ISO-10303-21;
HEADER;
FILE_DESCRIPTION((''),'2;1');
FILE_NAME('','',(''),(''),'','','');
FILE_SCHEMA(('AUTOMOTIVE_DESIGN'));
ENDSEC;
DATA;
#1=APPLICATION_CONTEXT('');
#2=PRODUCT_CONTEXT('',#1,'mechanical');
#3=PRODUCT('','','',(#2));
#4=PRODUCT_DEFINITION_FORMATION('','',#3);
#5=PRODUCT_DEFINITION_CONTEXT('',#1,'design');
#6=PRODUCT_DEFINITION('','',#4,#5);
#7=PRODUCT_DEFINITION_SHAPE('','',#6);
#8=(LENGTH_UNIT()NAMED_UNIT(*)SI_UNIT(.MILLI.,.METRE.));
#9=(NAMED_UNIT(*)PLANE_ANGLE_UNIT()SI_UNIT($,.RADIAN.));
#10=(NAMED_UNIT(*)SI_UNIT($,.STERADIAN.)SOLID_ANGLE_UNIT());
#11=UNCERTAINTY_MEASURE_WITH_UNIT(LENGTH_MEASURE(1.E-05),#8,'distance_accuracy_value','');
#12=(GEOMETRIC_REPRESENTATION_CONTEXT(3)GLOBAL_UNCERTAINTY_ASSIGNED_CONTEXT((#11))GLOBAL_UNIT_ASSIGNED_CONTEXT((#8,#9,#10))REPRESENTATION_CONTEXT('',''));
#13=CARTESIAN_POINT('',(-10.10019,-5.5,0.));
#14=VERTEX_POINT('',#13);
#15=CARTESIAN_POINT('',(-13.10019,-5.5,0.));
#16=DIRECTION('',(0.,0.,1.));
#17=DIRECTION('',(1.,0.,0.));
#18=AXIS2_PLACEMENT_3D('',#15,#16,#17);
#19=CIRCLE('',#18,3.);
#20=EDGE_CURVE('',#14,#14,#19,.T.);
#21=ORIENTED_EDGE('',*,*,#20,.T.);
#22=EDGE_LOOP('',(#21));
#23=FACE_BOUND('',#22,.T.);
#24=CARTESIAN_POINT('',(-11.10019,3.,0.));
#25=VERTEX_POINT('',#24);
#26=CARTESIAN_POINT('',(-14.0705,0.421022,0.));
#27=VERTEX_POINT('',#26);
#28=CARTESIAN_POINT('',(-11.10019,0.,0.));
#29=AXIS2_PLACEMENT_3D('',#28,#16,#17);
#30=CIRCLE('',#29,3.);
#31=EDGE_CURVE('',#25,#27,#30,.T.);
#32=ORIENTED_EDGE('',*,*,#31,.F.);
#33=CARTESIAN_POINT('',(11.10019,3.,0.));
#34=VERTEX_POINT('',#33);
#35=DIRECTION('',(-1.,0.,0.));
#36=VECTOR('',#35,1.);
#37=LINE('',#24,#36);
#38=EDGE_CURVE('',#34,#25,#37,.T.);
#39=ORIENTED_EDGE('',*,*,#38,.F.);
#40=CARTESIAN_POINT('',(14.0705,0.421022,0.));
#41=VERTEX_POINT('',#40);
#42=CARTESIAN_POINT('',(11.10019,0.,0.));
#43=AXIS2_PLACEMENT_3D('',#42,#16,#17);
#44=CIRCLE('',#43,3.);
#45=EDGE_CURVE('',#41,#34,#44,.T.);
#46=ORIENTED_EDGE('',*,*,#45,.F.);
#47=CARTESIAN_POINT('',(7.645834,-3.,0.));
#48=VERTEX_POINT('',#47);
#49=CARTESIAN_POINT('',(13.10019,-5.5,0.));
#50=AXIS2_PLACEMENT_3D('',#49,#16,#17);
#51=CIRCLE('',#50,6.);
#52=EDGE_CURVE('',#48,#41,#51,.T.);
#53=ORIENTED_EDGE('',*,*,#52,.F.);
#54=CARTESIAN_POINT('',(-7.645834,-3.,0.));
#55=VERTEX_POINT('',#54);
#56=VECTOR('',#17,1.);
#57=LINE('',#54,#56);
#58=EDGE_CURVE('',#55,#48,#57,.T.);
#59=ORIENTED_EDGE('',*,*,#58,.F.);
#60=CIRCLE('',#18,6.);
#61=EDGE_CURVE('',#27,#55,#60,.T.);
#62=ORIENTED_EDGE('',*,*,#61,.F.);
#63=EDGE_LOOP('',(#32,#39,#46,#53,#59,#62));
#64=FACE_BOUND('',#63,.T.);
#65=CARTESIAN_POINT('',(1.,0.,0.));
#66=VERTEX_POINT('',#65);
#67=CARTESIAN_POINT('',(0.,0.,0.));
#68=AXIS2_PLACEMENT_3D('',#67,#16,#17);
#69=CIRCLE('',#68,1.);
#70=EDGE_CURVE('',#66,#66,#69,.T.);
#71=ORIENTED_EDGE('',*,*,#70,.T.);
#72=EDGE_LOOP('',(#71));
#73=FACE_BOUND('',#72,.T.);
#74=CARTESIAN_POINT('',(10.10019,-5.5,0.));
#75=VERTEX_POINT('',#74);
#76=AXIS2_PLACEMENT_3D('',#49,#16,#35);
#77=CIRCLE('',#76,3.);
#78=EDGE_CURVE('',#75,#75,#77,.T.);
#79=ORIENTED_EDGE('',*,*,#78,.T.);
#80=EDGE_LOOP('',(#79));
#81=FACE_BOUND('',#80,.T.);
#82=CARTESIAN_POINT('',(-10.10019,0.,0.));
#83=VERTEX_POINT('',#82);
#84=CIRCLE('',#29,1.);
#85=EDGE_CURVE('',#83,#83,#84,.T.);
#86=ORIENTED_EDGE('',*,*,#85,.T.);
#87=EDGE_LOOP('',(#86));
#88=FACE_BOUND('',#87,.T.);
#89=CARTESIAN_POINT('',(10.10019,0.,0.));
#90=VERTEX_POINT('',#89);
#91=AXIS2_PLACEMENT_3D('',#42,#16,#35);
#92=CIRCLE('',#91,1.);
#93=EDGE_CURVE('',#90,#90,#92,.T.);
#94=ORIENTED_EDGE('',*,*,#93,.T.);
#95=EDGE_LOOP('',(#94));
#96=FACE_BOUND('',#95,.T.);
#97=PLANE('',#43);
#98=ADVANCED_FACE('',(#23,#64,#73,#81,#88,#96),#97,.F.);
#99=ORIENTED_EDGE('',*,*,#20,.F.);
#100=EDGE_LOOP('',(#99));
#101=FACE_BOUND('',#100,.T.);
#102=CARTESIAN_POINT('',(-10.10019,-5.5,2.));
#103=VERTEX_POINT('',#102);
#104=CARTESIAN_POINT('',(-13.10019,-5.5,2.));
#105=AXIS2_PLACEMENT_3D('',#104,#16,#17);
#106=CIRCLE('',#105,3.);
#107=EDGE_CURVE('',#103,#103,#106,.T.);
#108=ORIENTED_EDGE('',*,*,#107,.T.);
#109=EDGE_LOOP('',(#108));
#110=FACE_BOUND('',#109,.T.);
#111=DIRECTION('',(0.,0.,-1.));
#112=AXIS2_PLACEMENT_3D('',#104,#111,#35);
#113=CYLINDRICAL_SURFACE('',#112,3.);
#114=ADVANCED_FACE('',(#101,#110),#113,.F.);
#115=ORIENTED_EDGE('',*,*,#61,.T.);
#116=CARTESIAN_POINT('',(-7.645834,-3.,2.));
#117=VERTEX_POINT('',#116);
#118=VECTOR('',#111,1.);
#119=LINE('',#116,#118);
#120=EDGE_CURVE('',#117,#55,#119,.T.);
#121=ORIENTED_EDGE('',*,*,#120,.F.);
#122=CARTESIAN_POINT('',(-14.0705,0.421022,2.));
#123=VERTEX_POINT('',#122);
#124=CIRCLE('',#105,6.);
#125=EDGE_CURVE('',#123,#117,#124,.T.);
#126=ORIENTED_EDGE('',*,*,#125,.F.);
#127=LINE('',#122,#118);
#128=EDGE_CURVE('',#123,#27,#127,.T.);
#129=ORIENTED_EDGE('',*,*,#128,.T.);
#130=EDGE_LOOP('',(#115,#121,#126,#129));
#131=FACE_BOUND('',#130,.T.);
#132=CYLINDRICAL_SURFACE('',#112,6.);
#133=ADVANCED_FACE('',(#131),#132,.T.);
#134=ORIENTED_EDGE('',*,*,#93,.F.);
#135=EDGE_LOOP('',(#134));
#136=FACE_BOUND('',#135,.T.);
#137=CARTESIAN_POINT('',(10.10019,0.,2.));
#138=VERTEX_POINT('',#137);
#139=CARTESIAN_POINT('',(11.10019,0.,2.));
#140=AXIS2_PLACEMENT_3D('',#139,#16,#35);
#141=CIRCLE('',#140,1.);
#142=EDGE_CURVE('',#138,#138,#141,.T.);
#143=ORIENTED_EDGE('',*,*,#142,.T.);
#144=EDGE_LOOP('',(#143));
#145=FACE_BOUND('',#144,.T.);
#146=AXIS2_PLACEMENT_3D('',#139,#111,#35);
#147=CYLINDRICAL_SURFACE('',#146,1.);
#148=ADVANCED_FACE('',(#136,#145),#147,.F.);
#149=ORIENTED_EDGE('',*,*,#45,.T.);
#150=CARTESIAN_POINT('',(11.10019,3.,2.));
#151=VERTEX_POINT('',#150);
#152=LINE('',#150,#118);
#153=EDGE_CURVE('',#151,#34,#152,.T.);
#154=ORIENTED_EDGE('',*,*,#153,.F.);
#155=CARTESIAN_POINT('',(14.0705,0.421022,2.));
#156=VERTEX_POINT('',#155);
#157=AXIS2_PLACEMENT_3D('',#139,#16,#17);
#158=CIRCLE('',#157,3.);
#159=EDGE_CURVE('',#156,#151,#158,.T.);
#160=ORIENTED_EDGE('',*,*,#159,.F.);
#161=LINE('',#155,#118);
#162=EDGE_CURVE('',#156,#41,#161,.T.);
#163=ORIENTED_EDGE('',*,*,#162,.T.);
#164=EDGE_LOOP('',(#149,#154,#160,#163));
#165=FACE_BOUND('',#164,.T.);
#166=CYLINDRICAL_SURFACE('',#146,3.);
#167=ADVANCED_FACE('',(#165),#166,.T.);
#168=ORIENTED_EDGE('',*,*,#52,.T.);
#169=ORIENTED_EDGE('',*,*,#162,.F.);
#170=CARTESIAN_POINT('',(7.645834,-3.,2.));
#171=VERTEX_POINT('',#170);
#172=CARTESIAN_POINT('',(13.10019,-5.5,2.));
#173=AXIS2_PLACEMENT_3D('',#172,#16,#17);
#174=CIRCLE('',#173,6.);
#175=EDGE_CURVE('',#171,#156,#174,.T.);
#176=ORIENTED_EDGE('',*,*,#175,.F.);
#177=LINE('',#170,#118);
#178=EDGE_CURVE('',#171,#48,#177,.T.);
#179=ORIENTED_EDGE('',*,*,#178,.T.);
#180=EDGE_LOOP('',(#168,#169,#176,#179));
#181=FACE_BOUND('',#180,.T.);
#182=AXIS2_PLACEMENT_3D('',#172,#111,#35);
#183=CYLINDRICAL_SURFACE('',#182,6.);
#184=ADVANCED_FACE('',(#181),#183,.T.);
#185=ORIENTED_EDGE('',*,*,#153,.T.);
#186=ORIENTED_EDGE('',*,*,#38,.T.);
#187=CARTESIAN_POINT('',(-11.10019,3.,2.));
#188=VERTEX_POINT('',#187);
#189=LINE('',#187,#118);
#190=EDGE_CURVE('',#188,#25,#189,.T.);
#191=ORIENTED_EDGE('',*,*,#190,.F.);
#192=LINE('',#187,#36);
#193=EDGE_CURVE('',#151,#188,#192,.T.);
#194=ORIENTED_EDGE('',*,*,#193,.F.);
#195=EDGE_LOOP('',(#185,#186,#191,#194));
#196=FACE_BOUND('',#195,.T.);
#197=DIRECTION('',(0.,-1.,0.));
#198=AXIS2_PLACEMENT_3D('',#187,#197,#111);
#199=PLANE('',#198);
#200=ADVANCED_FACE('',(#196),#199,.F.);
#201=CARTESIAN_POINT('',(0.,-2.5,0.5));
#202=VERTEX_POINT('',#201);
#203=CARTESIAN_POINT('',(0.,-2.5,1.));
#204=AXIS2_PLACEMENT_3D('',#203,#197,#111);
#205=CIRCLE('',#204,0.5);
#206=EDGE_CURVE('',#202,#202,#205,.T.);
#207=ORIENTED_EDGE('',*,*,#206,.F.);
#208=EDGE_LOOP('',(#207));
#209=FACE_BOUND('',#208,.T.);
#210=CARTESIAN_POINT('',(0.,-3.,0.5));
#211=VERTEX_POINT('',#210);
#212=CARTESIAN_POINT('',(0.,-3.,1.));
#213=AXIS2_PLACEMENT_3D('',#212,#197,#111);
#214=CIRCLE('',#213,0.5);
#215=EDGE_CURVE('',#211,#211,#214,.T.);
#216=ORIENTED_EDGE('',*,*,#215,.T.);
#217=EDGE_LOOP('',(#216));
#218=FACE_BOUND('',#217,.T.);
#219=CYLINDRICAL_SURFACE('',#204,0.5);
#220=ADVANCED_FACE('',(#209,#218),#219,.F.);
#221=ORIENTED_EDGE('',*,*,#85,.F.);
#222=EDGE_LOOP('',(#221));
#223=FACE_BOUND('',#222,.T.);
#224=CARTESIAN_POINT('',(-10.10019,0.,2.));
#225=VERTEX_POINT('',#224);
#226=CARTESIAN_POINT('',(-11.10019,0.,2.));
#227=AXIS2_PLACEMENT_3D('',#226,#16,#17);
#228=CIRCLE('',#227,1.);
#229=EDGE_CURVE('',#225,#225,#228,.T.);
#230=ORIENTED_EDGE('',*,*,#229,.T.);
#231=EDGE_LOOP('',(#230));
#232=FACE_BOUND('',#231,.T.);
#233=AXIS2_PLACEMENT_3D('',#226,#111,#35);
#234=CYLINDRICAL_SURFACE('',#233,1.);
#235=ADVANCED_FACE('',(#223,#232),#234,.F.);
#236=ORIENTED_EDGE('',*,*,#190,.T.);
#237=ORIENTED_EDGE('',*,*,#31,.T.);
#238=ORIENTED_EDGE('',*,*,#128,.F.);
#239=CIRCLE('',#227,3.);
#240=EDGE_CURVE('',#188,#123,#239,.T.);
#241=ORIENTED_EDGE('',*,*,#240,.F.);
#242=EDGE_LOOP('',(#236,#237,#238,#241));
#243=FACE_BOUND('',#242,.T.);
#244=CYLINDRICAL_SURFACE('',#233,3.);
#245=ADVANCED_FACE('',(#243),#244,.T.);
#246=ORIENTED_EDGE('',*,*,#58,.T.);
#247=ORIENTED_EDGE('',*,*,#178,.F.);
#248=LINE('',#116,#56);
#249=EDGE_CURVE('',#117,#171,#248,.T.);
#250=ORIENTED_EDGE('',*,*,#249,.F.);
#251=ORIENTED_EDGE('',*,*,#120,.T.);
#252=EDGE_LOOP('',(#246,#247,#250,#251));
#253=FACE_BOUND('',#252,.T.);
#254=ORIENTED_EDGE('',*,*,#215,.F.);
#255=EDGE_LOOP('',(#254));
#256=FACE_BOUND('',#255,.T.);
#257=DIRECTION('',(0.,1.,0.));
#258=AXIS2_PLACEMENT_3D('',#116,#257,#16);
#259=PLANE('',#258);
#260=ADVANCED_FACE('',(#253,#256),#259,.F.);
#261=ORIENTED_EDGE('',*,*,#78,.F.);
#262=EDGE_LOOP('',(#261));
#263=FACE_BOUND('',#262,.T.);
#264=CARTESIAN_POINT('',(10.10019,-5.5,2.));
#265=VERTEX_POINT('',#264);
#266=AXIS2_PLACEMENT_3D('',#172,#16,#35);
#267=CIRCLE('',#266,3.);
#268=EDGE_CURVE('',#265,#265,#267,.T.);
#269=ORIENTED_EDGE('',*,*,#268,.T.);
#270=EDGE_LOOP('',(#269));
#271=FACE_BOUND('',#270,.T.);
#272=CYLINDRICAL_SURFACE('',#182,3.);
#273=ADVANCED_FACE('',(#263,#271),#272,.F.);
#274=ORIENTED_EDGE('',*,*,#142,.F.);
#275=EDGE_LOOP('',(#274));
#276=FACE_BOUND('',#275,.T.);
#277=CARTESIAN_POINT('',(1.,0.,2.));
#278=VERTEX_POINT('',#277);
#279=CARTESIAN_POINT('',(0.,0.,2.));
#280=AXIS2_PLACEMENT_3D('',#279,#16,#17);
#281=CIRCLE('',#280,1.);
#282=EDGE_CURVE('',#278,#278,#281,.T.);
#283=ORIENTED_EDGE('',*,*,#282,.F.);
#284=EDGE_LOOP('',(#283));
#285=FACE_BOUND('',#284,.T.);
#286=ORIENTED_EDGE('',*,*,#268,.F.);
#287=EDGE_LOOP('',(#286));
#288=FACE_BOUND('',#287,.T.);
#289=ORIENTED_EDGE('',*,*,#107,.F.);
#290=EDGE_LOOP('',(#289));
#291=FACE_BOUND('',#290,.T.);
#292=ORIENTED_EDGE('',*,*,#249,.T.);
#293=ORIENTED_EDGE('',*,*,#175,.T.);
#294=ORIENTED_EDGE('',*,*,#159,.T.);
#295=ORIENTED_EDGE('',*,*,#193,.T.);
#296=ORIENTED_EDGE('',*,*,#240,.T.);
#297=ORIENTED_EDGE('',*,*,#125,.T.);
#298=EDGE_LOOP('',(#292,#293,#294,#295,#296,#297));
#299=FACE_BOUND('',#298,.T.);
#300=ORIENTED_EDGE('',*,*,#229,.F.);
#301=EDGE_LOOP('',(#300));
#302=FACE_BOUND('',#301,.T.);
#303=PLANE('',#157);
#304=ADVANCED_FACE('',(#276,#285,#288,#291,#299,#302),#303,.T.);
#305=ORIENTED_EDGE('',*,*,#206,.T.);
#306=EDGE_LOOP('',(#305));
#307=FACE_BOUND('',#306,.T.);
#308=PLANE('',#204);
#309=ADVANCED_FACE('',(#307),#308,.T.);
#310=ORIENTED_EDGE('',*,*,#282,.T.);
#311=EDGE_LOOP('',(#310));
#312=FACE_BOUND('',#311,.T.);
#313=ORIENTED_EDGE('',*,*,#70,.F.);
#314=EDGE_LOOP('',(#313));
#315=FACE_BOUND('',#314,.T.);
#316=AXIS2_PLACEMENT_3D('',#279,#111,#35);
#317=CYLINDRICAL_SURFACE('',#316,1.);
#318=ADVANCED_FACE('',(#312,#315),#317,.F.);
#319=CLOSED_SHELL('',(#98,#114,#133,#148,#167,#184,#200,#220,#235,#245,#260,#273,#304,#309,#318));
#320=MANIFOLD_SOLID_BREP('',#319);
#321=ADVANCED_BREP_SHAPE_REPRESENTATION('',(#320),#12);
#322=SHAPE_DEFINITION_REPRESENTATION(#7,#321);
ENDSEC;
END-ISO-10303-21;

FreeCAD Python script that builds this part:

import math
import FreeCAD as App
import Part
import Sketcher
from FreeCAD import Vector

doc = App.newDocument("Part")
body = doc.addObject("PartDesign::Body", "Body")

sketch1 = body.newObject("Sketcher::SketchObject", "Sketch")
sketch1.AttachmentSupport = (doc.getObject("XY_Plane"), [""])
sketch1.MapMode = "FlatFace"
sketch1.addGeometry([
    Part.LineSegment(Vector(11.1, 3, 0), Vector(-11.1, 3, 0)),
    Part.ArcOfCircle(Part.Circle(Vector(-11.1, 0, 0), Vector(0, 0, 1), 3), math.radians(90), math.radians(172)),
    Part.ArcOfCircle(Part.Circle(Vector(-13.1, -5.5, 0), Vector(0, 0, 1), 6), math.radians(99), math.radians(385)),
    Part.LineSegment(Vector(-7.6, -3, 0), Vector(7.6, -3, 0)),
    Part.ArcOfCircle(Part.Circle(Vector(13.1, -5.5, 0), Vector(0, 0, 1), 6), math.radians(155), math.radians(441)),
    Part.ArcOfCircle(Part.Circle(Vector(11.1, 0, 0), Vector(0, 0, 1), 3), math.radians(8), math.radians(90)),
    Part.Circle(Vector(13.1, -5.5, 0), Vector(0, 0, 1), 3),
    Part.Circle(Vector(-13.1, -5.5, 0), Vector(0, 0, 1), 3),
    Part.Circle(Vector(11.1, 0, 0), Vector(0, 0, 1), 1),
    Part.Circle(Vector(0, 0, 0), Vector(0, 0, 1), 1),
    Part.Circle(Vector(-11.1, 0, 0), Vector(0, 0, 1), 1),
], False)
sketch1.addConstraint([
    Sketcher.Constraint("Tangent", 0, 2, 1, 1),
    Sketcher.Constraint("Coincident", 1, 2, 2, 1),
    Sketcher.Constraint("Coincident", 2, 2, 3, 1),
    Sketcher.Constraint("Coincident", 3, 2, 4, 1),
    Sketcher.Constraint("Coincident", 4, 2, 5, 1),
    Sketcher.Constraint("Tangent", 5, 2, 0, 1),
    Sketcher.Constraint("Horizontal", 0),
    Sketcher.Constraint("Horizontal", 3),
    Sketcher.Constraint("Coincident", 9, 3, -1, 1),
    Sketcher.Constraint("Coincident", 6, 3, 4, 3),
    Sketcher.Constraint("Coincident", 7, 3, 2, 3),
    Sketcher.Constraint("Coincident", 8, 3, 5, 3),
    Sketcher.Constraint("Coincident", 10, 3, 1, 3),
    Sketcher.Constraint("Equal", 2, 4),
    Sketcher.Constraint("Equal", 1, 5),
    Sketcher.Constraint("Equal", 5, 6),
    Sketcher.Constraint("Equal", 6, 7),
    Sketcher.Constraint("Equal", 8, 9),
    Sketcher.Constraint("Equal", 9, 10),
    Sketcher.Constraint("Symmetric", 1, 3, 5, 3, -1, 1),
    Sketcher.Constraint("Symmetric", 2, 3, 4, 3, -2),
    Sketcher.Constraint("Diameter", 6, 6.0),
    Sketcher.Constraint("Diameter", 8, 2.0),
    Sketcher.Constraint("Radius", 2, 6.0),
    Sketcher.Constraint("DistanceY", 2, 2, -1, 1, 3.0),
    Sketcher.Constraint("DistanceX", 2, 3, 1, 3, 2.0),
    Sketcher.Constraint("DistanceY", 2, 3, -1, 1, 5.5),
    Sketcher.Constraint("DistanceX", 0, 2, 0, 1, 22.200381),
])
pad1 = body.newObject("PartDesign::Pad", "Pad")
pad1.Profile = sketch1
pad1.Length = 2

sketch2 = body.newObject("Sketcher::SketchObject", "Sketch001")
sketch2.AttachmentSupport = (doc.getObject("XZ_Plane"), [""])
sketch2.MapMode = "FlatFace"
sketch2.AttachmentOffset = App.Placement(Vector(0, 0, 3), App.Rotation())
sketch2.addGeometry(Part.Circle(Vector(0, 1, 0), Vector(0, 0, 1), 0.5), False)
sketch2.addConstraint([
    Sketcher.Constraint("PointOnObject", 0, 3, -2),
    Sketcher.Constraint("Diameter", 0, 1.0),
    Sketcher.Constraint("DistanceY", -1, 1, 0, 3, 1.0),
])
pocket1 = body.newObject("PartDesign::Pocket", "Pocket")
pocket1.Profile = sketch2
pocket1.Length = 0.5

doc.recompute()
